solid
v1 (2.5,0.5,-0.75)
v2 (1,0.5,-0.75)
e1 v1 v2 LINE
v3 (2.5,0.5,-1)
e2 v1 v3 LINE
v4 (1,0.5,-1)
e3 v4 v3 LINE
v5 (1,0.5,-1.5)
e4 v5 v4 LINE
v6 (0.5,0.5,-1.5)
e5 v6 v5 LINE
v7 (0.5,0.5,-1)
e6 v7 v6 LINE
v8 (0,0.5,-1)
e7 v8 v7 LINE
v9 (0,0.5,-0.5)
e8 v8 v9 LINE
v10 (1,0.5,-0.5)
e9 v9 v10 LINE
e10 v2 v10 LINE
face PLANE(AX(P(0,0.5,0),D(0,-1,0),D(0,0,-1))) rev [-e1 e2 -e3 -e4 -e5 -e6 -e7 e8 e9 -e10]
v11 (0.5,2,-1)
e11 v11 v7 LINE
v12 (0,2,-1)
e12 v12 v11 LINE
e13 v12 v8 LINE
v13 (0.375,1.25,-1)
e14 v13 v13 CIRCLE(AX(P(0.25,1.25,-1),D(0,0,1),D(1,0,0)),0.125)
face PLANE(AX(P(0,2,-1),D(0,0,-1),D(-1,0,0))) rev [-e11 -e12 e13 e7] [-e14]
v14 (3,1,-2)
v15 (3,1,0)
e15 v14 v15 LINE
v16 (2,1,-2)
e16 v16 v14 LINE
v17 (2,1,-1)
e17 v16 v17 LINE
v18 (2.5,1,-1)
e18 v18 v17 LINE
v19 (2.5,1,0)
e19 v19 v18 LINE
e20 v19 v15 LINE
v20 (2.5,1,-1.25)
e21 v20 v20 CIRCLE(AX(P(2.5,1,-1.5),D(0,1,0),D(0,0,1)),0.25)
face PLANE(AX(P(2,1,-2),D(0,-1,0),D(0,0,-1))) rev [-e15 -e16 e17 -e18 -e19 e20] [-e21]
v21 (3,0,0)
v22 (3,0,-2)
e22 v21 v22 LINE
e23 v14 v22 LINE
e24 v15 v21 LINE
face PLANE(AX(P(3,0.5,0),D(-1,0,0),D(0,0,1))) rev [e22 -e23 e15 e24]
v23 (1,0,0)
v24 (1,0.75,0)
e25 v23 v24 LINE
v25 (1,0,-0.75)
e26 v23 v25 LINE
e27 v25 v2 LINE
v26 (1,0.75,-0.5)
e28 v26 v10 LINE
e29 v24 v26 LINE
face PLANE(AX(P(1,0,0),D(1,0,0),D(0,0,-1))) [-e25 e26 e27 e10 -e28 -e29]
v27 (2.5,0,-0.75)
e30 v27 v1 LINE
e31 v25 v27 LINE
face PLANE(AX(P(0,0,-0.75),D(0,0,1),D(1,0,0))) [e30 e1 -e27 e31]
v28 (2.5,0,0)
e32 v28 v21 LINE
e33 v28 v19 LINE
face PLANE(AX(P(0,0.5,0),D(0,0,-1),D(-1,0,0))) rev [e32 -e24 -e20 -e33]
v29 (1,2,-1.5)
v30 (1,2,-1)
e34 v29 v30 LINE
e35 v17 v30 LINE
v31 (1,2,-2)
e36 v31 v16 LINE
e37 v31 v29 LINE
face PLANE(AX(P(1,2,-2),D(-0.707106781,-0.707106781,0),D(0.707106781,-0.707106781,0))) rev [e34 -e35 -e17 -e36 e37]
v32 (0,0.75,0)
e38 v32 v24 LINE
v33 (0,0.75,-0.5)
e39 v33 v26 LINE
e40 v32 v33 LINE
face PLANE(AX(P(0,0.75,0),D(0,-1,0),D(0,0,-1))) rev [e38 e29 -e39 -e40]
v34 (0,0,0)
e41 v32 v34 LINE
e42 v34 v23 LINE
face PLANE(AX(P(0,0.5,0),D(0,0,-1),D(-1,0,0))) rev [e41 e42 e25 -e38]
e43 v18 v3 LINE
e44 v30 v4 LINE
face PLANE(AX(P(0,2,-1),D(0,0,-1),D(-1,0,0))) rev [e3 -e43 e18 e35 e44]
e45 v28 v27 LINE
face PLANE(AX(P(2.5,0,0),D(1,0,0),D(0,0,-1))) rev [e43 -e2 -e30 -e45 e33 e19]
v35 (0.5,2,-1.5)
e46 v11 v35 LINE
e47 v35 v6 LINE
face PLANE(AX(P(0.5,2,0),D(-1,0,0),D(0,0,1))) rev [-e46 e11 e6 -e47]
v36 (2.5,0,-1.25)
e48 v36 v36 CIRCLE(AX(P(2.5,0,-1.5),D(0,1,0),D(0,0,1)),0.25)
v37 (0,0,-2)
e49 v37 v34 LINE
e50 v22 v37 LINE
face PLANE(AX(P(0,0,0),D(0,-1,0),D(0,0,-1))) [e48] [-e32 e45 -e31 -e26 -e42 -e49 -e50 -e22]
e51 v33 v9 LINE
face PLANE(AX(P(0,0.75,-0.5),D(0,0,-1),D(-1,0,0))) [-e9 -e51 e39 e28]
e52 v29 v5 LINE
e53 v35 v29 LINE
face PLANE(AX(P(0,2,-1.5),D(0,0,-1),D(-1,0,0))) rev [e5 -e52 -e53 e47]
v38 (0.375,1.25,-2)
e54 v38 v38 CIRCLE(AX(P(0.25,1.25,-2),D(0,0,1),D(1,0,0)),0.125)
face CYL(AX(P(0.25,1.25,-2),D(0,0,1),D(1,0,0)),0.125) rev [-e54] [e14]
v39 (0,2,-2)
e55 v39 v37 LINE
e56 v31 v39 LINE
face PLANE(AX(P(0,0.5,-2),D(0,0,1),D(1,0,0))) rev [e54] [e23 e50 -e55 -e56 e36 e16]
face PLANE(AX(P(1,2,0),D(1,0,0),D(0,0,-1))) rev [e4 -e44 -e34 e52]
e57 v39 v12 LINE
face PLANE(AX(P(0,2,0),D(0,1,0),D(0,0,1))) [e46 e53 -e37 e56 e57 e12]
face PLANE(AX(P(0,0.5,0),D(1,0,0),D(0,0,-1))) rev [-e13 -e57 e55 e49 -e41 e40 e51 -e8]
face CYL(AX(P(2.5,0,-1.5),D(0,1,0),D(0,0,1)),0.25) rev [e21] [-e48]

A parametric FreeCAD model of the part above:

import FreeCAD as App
import Part
import Sketcher

V = App.Vector

doc = App.newDocument("Part")
body = doc.addObject("PartDesign::Body", "Body")

# Sketch on XZ plane
sketch1 = body.newObject("Sketcher::SketchObject", "Sketch")
sketch1.AttachmentSupport = (doc.getObject("XZ_Plane"), [""])
sketch1.MapMode = "FlatFace"
sketch1.addGeometry([
    Part.LineSegment(V(0, -2, 0), V(0, 0, 0)),
    Part.LineSegment(V(0, 0, 0), V(3, 0, 0)),
    Part.LineSegment(V(3, 0, 0), V(3, -2, 0)),
    Part.LineSegment(V(3, -2, 0), V(0, -2, 0)),
], False)
sketch1.addConstraint([
    Sketcher.Constraint("Coincident", 0, 2, 1, 1),
    Sketcher.Constraint("Coincident", 1, 2, 2, 1),
    Sketcher.Constraint("Coincident", 2, 2, 3, 1),
    Sketcher.Constraint("Coincident", 3, 2, 0, 1),
    Sketcher.Constraint("Vertical", 0),
    Sketcher.Constraint("Horizontal", 1),
    Sketcher.Constraint("Vertical", 2),
    Sketcher.Constraint("Horizontal", 3),
    Sketcher.Constraint("Coincident", 0, 2, -1, 1),
    Sketcher.Constraint("DistanceX", 1, 1, 1, 2, 3.0),
    Sketcher.Constraint("DistanceY", 0, 1, 0, 2, 2.0),
])
pad1 = body.newObject("PartDesign::Pad", "Pad")
pad1.Profile = sketch1
pad1.Length = 0.5
pad1.Reversed = True

# Sketch on XZ plane
sketch2 = body.newObject("Sketcher::SketchObject", "Sketch001")
sketch2.AttachmentSupport = (doc.getObject("XZ_Plane"), [""])
sketch2.MapMode = "FlatFace"
sketch2.AttachmentOffset = App.Placement(V(0, 0, -0.5), App.Rotation())
sketch2.addGeometry([
    Part.LineSegment(V(1, 0, 0), V(2.5, 0, 0)),
    Part.LineSegment(V(2.5, 0, 0), V(2.5, -0.75, 0)),
    Part.LineSegment(V(2.5, -0.75, 0), V(1, -0.75, 0)),
    Part.LineSegment(V(1, -0.75, 0), V(1, 0, 0)),
], False)
sketch2.addConstraint([
    Sketcher.Constraint("Coincident", 0, 2, 1, 1),
    Sketcher.Constraint("Coincident", 1, 2, 2, 1),
    Sketcher.Constraint("Coincident", 2, 2, 3, 1),
    Sketcher.Constraint("Coincident", 3, 2, 0, 1),
    Sketcher.Constraint("Horizontal", 0),
    Sketcher.Constraint("Vertical", 1),
    Sketcher.Constraint("Horizontal", 2),
    Sketcher.Constraint("Vertical", 3),
    Sketcher.Constraint("PointOnObject", 0, 2, -1),
    Sketcher.Constraint("DistanceX", 0, 1, 0, 2, 1.5),
    Sketcher.Constraint("DistanceX", -1, 1, 2, 2, 1.0),
    Sketcher.Constraint("DistanceY", 1, 2, 1, 1, 0.75),
])
pocket1 = body.newObject("PartDesign::Pocket", "Pocket")
pocket1.Profile = sketch2
pocket1.Type = "ThroughAll"
pocket1.Midplane = True

# Sketch on XZ plane
sketch3 = body.newObject("Sketcher::SketchObject", "Sketch002")
sketch3.AttachmentSupport = (doc.getObject("XZ_Plane"), [""])
sketch3.MapMode = "FlatFace"
sketch3.AttachmentOffset = App.Placement(V(0, 0, -0.5), App.Rotation())
sketch3.addGeometry([
    Part.LineSegment(V(0, -0.5, 0), V(0, 0, 0)),
    Part.LineSegment(V(0, 0, 0), V(1, 0, 0)),
    Part.LineSegment(V(1, 0, 0), V(1, -0.5, 0)),
    Part.LineSegment(V(1, -0.5, 0), V(0, -0.5, 0)),
], False)
sketch3.addConstraint([
    Sketcher.Constraint("Coincident", 0, 2, 1, 1),
    Sketcher.Constraint("Coincident", 1, 2, 2, 1),
    Sketcher.Constraint("Coincident", 2, 2, 3, 1),
    Sketcher.Constraint("Coincident", 3, 2, 0, 1),
    Sketcher.Constraint("Vertical", 0),
    Sketcher.Constraint("Horizontal", 1),
    Sketcher.Constraint("Vertical", 2),
    Sketcher.Constraint("Horizontal", 3),
    Sketcher.Constraint("Coincident", 0, 2, -1, 1),
    Sketcher.Constraint("DistanceX", 1, 1, 1, 2, 1.0),
    Sketcher.Constraint("DistanceY", 0, 1, 0, 2, 0.5),
])
pad2 = body.newObject("PartDesign::Pad", "Pad001")
pad2.Profile = sketch3
pad2.Length = 0.25
pad2.Reversed = True

# Sketch on XZ plane
sketch4 = body.newObject("Sketcher::SketchObject", "Sketch003")
sketch4.AttachmentSupport = (doc.getObject("XZ_Plane"), [""])
sketch4.MapMode = "FlatFace"
sketch4.AttachmentOffset = App.Placement(V(0, 0, -0.5), App.Rotation())
sketch4.addGeometry([
    Part.LineSegment(V(0, -2, 0), V(0, -1, 0)),  # 0
    Part.LineSegment(V(0, -1, 0), V(0.5, -1, 0)),  # 1
    Part.LineSegment(V(0.5, -1, 0), V(0.5, -1.5, 0)),  # 2
    Part.LineSegment(V(0.5, -1.5, 0), V(1, -1.5, 0)),  # 3
    Part.LineSegment(V(1, -1.5, 0), V(1, -1, 0)),  # 4
    Part.LineSegment(V(1, -1, 0), V(2.5, -1, 0)),  # 5
    Part.LineSegment(V(2.5, -1, 0), V(2.5, 0, 0)),  # 6
    Part.LineSegment(V(2.5, 0, 0), V(3, 0, 0)),  # 7
    Part.LineSegment(V(3, 0, 0), V(3, -2, 0)),  # 8
    Part.LineSegment(V(3, -2, 0), V(0, -2, 0)),  # 9
], False)
sketch4.addConstraint([
    Sketcher.Constraint("Coincident", 0, 2, 1, 1),
    Sketcher.Constraint("Coincident", 1, 2, 2, 1),
    Sketcher.Constraint("Coincident", 2, 2, 3, 1),
    Sketcher.Constraint("Coincident", 3, 2, 4, 1),
    Sketcher.Constraint("Coincident", 4, 2, 5, 1),
    Sketcher.Constraint("Coincident", 5, 2, 6, 1),
    Sketcher.Constraint("Coincident", 6, 2, 7, 1),
    Sketcher.Constraint("Coincident", 7, 2, 8, 1),
    Sketcher.Constraint("Coincident", 8, 2, 9, 1),
    Sketcher.Constraint("Coincident", 9, 2, 0, 1),
    Sketcher.Constraint("Vertical", 0),
    Sketcher.Constraint("Horizontal", 1),
    Sketcher.Constraint("Vertical", 2),
    Sketcher.Constraint("Horizontal", 3),
    Sketcher.Constraint("Vertical", 4),
    Sketcher.Constraint("Horizontal", 5),
    Sketcher.Constraint("Vertical", 6),
    Sketcher.Constraint("Horizontal", 7),
    Sketcher.Constraint("Vertical", 8),
    Sketcher.Constraint("Horizontal", 9),
    Sketcher.Constraint("PointOnObject", 0, 2, -2),
    Sketcher.Constraint("PointOnObject", 6, 2, -1),
    Sketcher.Constraint("Horizontal", 1, 2, 4, 2),
    Sketcher.Constraint("Equal", 1, 3),
    Sketcher.Constraint("Equal", 3, 7),
    Sketcher.Constraint("Equal", 7, 2),
    Sketcher.Constraint("Equal", 0, 6),
    Sketcher.Constraint("DistanceX", 9, 2, 9, 1, 3.0),
    Sketcher.Constraint("DistanceY", 0, 1, 0, 2, 1.0),
    Sketcher.Constraint("DistanceX", 1, 1, 1, 2, 0.5),
])
pad3 = body.newObject("PartDesign::Pad", "Pad002")
pad3.Profile = sketch4
pad3.Length = 1.5
pad3.Reversed = True

# Sketch on XY plane
sketch5 = body.newObject("Sketcher::SketchObject", "Sketch004")
sketch5.AttachmentSupport = (doc.getObject("XY_Plane"), [""])
sketch5.MapMode = "FlatFace"
sketch5.addGeometry([
    Part.LineSegment(V(1, 2, 0), V(2, 1, 0)),
    Part.LineSegment(V(2, 1, 0), V(3, 1, 0)),
    Part.LineSegment(V(3, 1, 0), V(3, 2, 0)),
    Part.LineSegment(V(3, 2, 0), V(1, 2, 0)),
], False)
sketch5.addConstraint([
    Sketcher.Constraint("Coincident", 0, 2, 1, 1),
    Sketcher.Constraint("Coincident", 1, 2, 2, 1),
    Sketcher.Constraint("Coincident", 2, 2, 3, 1),
    Sketcher.Constraint("Coincident", 3, 2, 0, 1),
    Sketcher.Constraint("Horizontal", 1),
    Sketcher.Constraint("Vertical", 2),
    Sketcher.Constraint("Horizontal", 3),
    Sketcher.Constraint("Equal", 1, 2),
    Sketcher.Constraint("DistanceX", 1, 1, 1, 2, 1.0),
    Sketcher.Constraint("DistanceX", 3, 2, 3, 1, 2.0),
    Sketcher.Constraint("DistanceX", -1, 1, 0, 2, 2.0),
    Sketcher.Constraint("DistanceY", -1, 1, 0, 2, 1.0),
])
pocket2 = body.newObject("PartDesign::Pocket", "Pocket001")
pocket2.Profile = sketch5
pocket2.Type = "ThroughAll"

# Sketch on XZ plane
sketch6 = body.newObject("Sketcher::SketchObject", "Sketch005")
sketch6.AttachmentSupport = (doc.getObject("XZ_Plane"), [""])
sketch6.MapMode = "FlatFace"
sketch6.AttachmentOffset = App.Placement(V(0, 0, -1), App.Rotation())
sketch6.addGeometry(Part.Circle(V(2.5, -1.5, 0), V(0, 0, 1), 0.25), False)
sketch6.addConstraint([
    Sketcher.Constraint("Diameter", 0, 0.5),
    Sketcher.Constraint("DistanceX", -1, 1, 0, 3, 2.5),
    Sketcher.Constraint("DistanceY", 0, 3, -1, 1, 1.5),
])
pocket3 = body.newObject("PartDesign::Pocket", "Pocket002")
pocket3.Profile = sketch6
pocket3.Type = "ThroughAll"
pocket3.Reversed = True

# Sketch on XY plane
sketch7 = body.newObject("Sketcher::SketchObject", "Sketch006")
sketch7.AttachmentSupport = (doc.getObject("XY_Plane"), [""])
sketch7.MapMode = "FlatFace"
sketch7.AttachmentOffset = App.Placement(V(0, 0, -1), App.Rotation())
sketch7.addGeometry(Part.Circle(V(0.25, 1.25, 0), V(0, 0, 1), 0.125), False)
sketch7.addConstraint([
    Sketcher.Constraint("Diameter", 0, 0.25),
    Sketcher.Constraint("DistanceX", -1, 1, 0, 3, 0.25),
    Sketcher.Constraint("DistanceY", -1, 1, 0, 3, 1.25),
])
pocket4 = body.newObject("PartDesign::Pocket", "Pocket003")
pocket4.Profile = sketch7
pocket4.Type = "ThroughAll"

doc.recompute()
